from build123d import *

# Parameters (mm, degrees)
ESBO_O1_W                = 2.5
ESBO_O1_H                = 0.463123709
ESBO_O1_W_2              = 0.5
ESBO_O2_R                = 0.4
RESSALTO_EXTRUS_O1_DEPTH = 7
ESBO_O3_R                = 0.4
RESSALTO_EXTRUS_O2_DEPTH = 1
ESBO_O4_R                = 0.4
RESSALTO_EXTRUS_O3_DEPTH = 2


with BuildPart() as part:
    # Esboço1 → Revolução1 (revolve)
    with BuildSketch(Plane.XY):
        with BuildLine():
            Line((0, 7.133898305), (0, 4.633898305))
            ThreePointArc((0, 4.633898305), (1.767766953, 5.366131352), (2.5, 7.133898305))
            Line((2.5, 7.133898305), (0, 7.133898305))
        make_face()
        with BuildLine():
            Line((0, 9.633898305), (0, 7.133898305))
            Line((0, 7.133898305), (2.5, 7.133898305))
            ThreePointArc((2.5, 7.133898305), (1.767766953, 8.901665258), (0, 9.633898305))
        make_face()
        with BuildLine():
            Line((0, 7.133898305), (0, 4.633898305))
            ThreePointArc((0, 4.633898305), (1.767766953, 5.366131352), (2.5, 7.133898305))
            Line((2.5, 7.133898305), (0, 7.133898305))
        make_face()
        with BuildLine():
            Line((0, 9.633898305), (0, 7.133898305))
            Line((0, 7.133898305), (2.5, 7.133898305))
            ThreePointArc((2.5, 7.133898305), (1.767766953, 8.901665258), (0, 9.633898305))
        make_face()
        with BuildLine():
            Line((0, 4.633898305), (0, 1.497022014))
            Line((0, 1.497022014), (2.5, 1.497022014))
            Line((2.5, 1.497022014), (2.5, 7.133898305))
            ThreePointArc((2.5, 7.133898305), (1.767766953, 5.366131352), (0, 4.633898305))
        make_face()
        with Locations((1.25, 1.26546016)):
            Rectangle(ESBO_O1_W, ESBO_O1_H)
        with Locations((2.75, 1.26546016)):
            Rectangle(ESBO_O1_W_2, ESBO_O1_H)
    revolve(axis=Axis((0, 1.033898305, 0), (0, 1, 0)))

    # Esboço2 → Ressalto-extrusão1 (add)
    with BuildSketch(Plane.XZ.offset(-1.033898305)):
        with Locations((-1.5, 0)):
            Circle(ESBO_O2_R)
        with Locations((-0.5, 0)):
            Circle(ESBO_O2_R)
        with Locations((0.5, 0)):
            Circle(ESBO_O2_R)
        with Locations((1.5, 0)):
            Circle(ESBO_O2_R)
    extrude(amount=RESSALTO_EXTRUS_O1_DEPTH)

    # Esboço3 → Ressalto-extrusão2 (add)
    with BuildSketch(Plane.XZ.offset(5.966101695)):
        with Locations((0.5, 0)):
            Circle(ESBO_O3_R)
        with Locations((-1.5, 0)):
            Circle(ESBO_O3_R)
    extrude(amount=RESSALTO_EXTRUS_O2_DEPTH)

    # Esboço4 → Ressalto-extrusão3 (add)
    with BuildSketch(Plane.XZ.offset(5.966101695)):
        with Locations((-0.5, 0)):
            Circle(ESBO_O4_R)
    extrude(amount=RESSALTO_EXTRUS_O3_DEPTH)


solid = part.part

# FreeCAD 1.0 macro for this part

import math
import FreeCAD as App
import Part
import Sketcher

doc = App.newDocument("Part")
body = doc.addObject("PartDesign::Body", "Body")

# Sketch on XY plane
sketch1 = doc.addObject("Sketcher::SketchObject", "Sketch")
body.addObject(sketch1)
sketch1.AttachmentSupport = (doc.XY_Plane, [""])
sketch1.MapMode = "FlatFace"
sketch1.addGeometry(Part.ArcOfCircle(Part.Circle(App.Vector(0, 7.133898, 0), App.Vector(0, 0, 1), 2.5), math.radians(0), math.radians(90)), False)
sketch1.addGeometry(Part.LineSegment(App.Vector(0, 9.633898, 0), App.Vector(0, 1.033898, 0)), False)
sketch1.addGeometry(Part.LineSegment(App.Vector(0, 1.033898, 0), App.Vector(3, 1.033898, 0)), False)
sketch1.addGeometry(Part.LineSegment(App.Vector(3, 1.033898, 0), App.Vector(3, 1.497022, 0)), False)
sketch1.addGeometry(Part.LineSegment(App.Vector(3, 1.497022, 0), App.Vector(2.5, 1.497022, 0)), False)
sketch1.addGeometry(Part.LineSegment(App.Vector(2.5, 1.497022, 0), App.Vector(2.5, 7.133898, 0)), False)
sketch1.addConstraint(Sketcher.Constraint("Coincident", 0, 2, 1, 1))
sketch1.addConstraint(Sketcher.Constraint("Coincident", 1, 2, 2, 1))
sketch1.addConstraint(Sketcher.Constraint("Coincident", 2, 2, 3, 1))
sketch1.addConstraint(Sketcher.Constraint("Coincident", 3, 2, 4, 1))
sketch1.addConstraint(Sketcher.Constraint("Coincident", 4, 2, 5, 1))
sketch1.addConstraint(Sketcher.Constraint("Tangent", 5, 2, 0, 1))
sketch1.addConstraint(Sketcher.Constraint("Vertical", 1))
sketch1.addConstraint(Sketcher.Constraint("Horizontal", 2))
sketch1.addConstraint(Sketcher.Constraint("Vertical", 3))
sketch1.addConstraint(Sketcher.Constraint("Horizontal", 4))
sketch1.addConstraint(Sketcher.Constraint("Vertical", 5))
sketch1.addConstraint(Sketcher.Constraint("PointOnObject", 0, 3, -2))
sketch1.addConstraint(Sketcher.Constraint("PointOnObject", 0, 2, -2))
sketch1.addConstraint(Sketcher.Constraint("Radius", 0, 2.5))
sketch1.addConstraint(Sketcher.Constraint("DistanceX", 2, 1, 2, 2, 3.0))
sketch1.addConstraint(Sketcher.Constraint("DistanceY", 1, 2, 1, 1, 8.6))
sketch1.addConstraint(Sketcher.Constraint("DistanceY", -1, 1, 0, 3, 7.133898))
sketch1.addConstraint(Sketcher.Constraint("DistanceY", 3, 1, 3, 2, 0.463124))
revolution = doc.addObject("PartDesign::Revolution", "Revolution")
body.addObject(revolution)
revolution.Profile = sketch1
revolution.ReferenceAxis = (sketch1, ["V_Axis"])
revolution.Angle = 360

# Sketch on XZ plane
sketch2 = doc.addObject("Sketcher::SketchObject", "Sketch001")
body.addObject(sketch2)
sketch2.AttachmentSupport = (doc.XZ_Plane, [""])
sketch2.MapMode = "FlatFace"
sketch2.AttachmentOffset = App.Placement(App.Vector(0, 0, -1.033898), App.Rotation())
sketch2.addGeometry(Part.Circle(App.Vector(-1.5, 0, 0), App.Vector(0, 0, 1), 0.4), False)
sketch2.addGeometry(Part.Circle(App.Vector(-0.5, 0, 0), App.Vector(0, 0, 1), 0.4), False)
sketch2.addGeometry(Part.Circle(App.Vector(0.5, 0, 0), App.Vector(0, 0, 1), 0.4), False)
sketch2.addGeometry(Part.Circle(App.Vector(1.5, 0, 0), App.Vector(0, 0, 1), 0.4), False)
sketch2.addConstraint(Sketcher.Constraint("Equal", 0, 1))
sketch2.addConstraint(Sketcher.Constraint("Equal", 1, 2))
sketch2.addConstraint(Sketcher.Constraint("Equal", 2, 3))
sketch2.addConstraint(Sketcher.Constraint("Symmetric", 1, 3, 2, 3, -1, 1))
sketch2.addConstraint(Sketcher.Constraint("Symmetric", 0, 3, 3, 3, -1, 1))
sketch2.addConstraint(Sketcher.Constraint("PointOnObject", 0, 3, -1))
sketch2.addConstraint(Sketcher.Constraint("PointOnObject", 1, 3, -1))
sketch2.addConstraint(Sketcher.Constraint("Diameter", 0, 0.8))
sketch2.addConstraint(Sketcher.Constraint("DistanceX", 0, 3, 1, 3, 1.0))
sketch2.addConstraint(Sketcher.Constraint("DistanceX", 1, 3, 2, 3, 1.0))
pad1 = doc.addObject("PartDesign::Pad", "Pad")
body.addObject(pad1)
pad1.Profile = sketch2
pad1.Length = 7

# Sketch on XZ plane
sketch3 = doc.addObject("Sketcher::SketchObject", "Sketch002")
body.addObject(sketch3)
sketch3.AttachmentSupport = (doc.XZ_Plane, [""])
sketch3.MapMode = "FlatFace"
sketch3.AttachmentOffset = App.Placement(App.Vector(0, 0, 5.966102), App.Rotation())
sketch3.addGeometry(Part.Circle(App.Vector(0.5, 0, 0), App.Vector(0, 0, 1), 0.4), False)
sketch3.addGeometry(Part.Circle(App.Vector(-1.5, 0, 0), App.Vector(0, 0, 1), 0.4), False)
sketch3.addConstraint(Sketcher.Constraint("Equal", 0, 1))
sketch3.addConstraint(Sketcher.Constraint("PointOnObject", 0, 3, -1))
sketch3.addConstraint(Sketcher.Constraint("PointOnObject", 1, 3, -1))
sketch3.addConstraint(Sketcher.Constraint("Diameter", 0, 0.8))
sketch3.addConstraint(Sketcher.Constraint("DistanceX", 1, 3, 0, 3, 2.0))
sketch3.addConstraint(Sketcher.Constraint("DistanceX", -1, 1, 0, 3, 0.5))
pad2 = doc.addObject("PartDesign::Pad", "Pad001")
body.addObject(pad2)
pad2.Profile = sketch3
pad2.Length = 1

# Sketch on XZ plane
sketch4 = doc.addObject("Sketcher::SketchObject", "Sketch003")
body.addObject(sketch4)
sketch4.AttachmentSupport = (doc.XZ_Plane, [""])
sketch4.MapMode = "FlatFace"
sketch4.AttachmentOffset = App.Placement(App.Vector(0, 0, 5.966102), App.Rotation())
sketch4.addGeometry(Part.Circle(App.Vector(-0.5, 0, 0), App.Vector(0, 0, 1), 0.4), False)
sketch4.addConstraint(Sketcher.Constraint("PointOnObject", 0, 3, -1))
sketch4.addConstraint(Sketcher.Constraint("Diameter", 0, 0.8))
sketch4.addConstraint(Sketcher.Constraint("DistanceX", 0, 3, -1, 1, 0.5))
pad3 = doc.addObject("PartDesign::Pad", "Pad002")
body.addObject(pad3)
pad3.Profile = sketch4
pad3.Length = 2

doc.recompute()
